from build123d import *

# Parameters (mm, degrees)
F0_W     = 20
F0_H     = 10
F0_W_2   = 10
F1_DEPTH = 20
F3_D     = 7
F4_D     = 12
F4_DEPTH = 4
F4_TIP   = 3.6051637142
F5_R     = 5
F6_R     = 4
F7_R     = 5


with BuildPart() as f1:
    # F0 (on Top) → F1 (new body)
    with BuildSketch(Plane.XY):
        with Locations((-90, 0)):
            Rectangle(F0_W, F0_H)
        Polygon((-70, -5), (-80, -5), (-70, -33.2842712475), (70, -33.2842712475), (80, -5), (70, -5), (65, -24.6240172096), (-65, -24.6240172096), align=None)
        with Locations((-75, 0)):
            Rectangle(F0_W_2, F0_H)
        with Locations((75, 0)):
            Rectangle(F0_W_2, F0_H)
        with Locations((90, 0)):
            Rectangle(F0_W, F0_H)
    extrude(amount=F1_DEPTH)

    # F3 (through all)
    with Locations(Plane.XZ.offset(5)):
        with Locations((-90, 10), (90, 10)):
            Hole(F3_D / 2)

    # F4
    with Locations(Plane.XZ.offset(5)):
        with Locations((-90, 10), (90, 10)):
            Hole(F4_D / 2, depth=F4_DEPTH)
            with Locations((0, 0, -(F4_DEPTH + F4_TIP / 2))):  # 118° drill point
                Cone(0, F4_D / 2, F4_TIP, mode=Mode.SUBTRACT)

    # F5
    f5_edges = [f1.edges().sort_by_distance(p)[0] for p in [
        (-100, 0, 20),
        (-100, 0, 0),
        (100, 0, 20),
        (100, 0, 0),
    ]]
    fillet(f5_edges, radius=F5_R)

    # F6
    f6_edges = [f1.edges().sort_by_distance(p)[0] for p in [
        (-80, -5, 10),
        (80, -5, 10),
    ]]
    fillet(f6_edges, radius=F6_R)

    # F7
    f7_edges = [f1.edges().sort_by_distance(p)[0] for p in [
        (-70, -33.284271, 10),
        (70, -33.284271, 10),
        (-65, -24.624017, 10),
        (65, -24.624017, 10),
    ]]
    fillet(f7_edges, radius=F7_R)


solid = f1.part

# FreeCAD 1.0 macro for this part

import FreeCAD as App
import Part
import Sketcher


def edges_at(feature, points):
    """Names of the edges that pass closest to the given points."""
    edges = feature.Shape.Edges
    near = lambda p: min(range(len(edges)), key=lambda i: edges[i].distToShape(Part.Vertex(*p))[0])
    return sorted({f"Edge{near(p) + 1}" for p in points})

doc = App.newDocument("Part")
body = doc.addObject("PartDesign::Body", "Body")

sketch1 = body.newObject("Sketcher::SketchObject", "Sketch")
sketch1.AttachmentSupport = (doc.getObject("XY_Plane"), [""])
sketch1.MapMode = "FlatFace"
sketch1.addGeometry(Part.LineSegment(App.Vector(-100, 5, 0), App.Vector(-100, -5, 0)), False)
sketch1.addGeometry(Part.LineSegment(App.Vector(-100, -5, 0), App.Vector(-80, -5, 0)), False)
sketch1.addGeometry(Part.LineSegment(App.Vector(-80, -5, 0), App.Vector(-70, -33, 0)), False)
sketch1.addGeometry(Part.LineSegment(App.Vector(-70, -33, 0), App.Vector(70, -33, 0)), False)
sketch1.addGeometry(Part.LineSegment(App.Vector(70, -33, 0), App.Vector(80, -5, 0)), False)
sketch1.addGeometry(Part.LineSegment(App.Vector(80, -5, 0), App.Vector(100, -5, 0)), False)
sketch1.addGeometry(Part.LineSegment(App.Vector(100, -5, 0), App.Vector(100, 5, 0)), False)
sketch1.addGeometry(Part.LineSegment(App.Vector(100, 5, 0), App.Vector(70, 5, 0)), False)
sketch1.addGeometry(Part.LineSegment(App.Vector(70, 5, 0), App.Vector(70, -5, 0)), False)
sketch1.addGeometry(Part.LineSegment(App.Vector(70, -5, 0), App.Vector(65, -25, 0)), False)
sketch1.addGeometry(Part.LineSegment(App.Vector(65, -25, 0), App.Vector(-65, -25, 0)), False)
sketch1.addGeometry(Part.LineSegment(App.Vector(-65, -25, 0), App.Vector(-70, -5, 0)), False)
sketch1.addGeometry(Part.LineSegment(App.Vector(-70, -5, 0), App.Vector(-70, 5, 0)), False)
sketch1.addGeometry(Part.LineSegment(App.Vector(-70, 5, 0), App.Vector(-100, 5, 0)), False)
sketch1.addConstraint(Sketcher.Constraint("Coincident", 0, 2, 1, 1))
sketch1.addConstraint(Sketcher.Constraint("Coincident", 1, 2, 2, 1))
sketch1.addConstraint(Sketcher.Constraint("Coincident", 2, 2, 3, 1))
sketch1.addConstraint(Sketcher.Constraint("Coincident", 3, 2, 4, 1))
sketch1.addConstraint(Sketcher.Constraint("Coincident", 4, 2, 5, 1))
sketch1.addConstraint(Sketcher.Constraint("Coincident", 5, 2, 6, 1))
sketch1.addConstraint(Sketcher.Constraint("Coincident", 6, 2, 7, 1))
sketch1.addConstraint(Sketcher.Constraint("Coincident", 7, 2, 8, 1))
sketch1.addConstraint(Sketcher.Constraint("Coincident", 8, 2, 9, 1))
sketch1.addConstraint(Sketcher.Constraint("Coincident", 9, 2, 10, 1))
sketch1.addConstraint(Sketcher.Constraint("Coincident", 10, 2, 11, 1))
sketch1.addConstraint(Sketcher.Constraint("Coincident", 11, 2, 12, 1))
sketch1.addConstraint(Sketcher.Constraint("Coincident", 12, 2, 13, 1))
sketch1.addConstraint(Sketcher.Constraint("Coincident", 13, 2, 0, 1))
sketch1.addConstraint(Sketcher.Constraint("Vertical", 0))
sketch1.addConstraint(Sketcher.Constraint("Horizontal", 1))
sketch1.addConstraint(Sketcher.Constraint("Horizontal", 3))
sketch1.addConstraint(Sketcher.Constraint("Horizontal", 5))
sketch1.addConstraint(Sketcher.Constraint("Vertical", 6))
sketch1.addConstraint(Sketcher.Constraint("Horizontal", 7))
sketch1.addConstraint(Sketcher.Constraint("Vertical", 8))
sketch1.addConstraint(Sketcher.Constraint("Horizontal", 10))
sketch1.addConstraint(Sketcher.Constraint("Vertical", 12))
sketch1.addConstraint(Sketcher.Constraint("Horizontal", 13))
sketch1.addConstraint(Sketcher.Constraint("Symmetric", 0, 2, 6, 2, -1, 1))
sketch1.addConstraint(Sketcher.Constraint("Symmetric", 7, 2, 11, 2, -1, 1))
sketch1.addConstraint(Sketcher.Constraint("Symmetric", 1, 2, 4, 2, -2))
sketch1.addConstraint(Sketcher.Constraint("Horizontal", 5, 2, 8, 2))
sketch1.addConstraint(Sketcher.Constraint("Horizontal", 7, 2, 12, 2))
sketch1.addConstraint(Sketcher.Constraint("Vertical", 3, 2, 7, 2))
sketch1.addConstraint(Sketcher.Constraint("Vertical", 2, 2, 11, 2))
sketch1.addConstraint(Sketcher.Constraint("Equal", 9, 11))
sketch1.addConstraint(Sketcher.Constraint("DistanceX", 1, 1, 1, 2, 20.0))
sketch1.addConstraint(Sketcher.Constraint("DistanceX", 3, 1, 3, 2, 140.0))
sketch1.addConstraint(Sketcher.Constraint("DistanceX", 7, 2, 7, 1, 30.0))
sketch1.addConstraint(Sketcher.Constraint("DistanceX", 10, 2, 10, 1, 130.0))
sketch1.addConstraint(Sketcher.Constraint("DistanceY", 0, 2, 0, 1, 10.0))
sketch1.addConstraint(Sketcher.Constraint("Distance", 2, 30.0))
sketch1.addConstraint(Sketcher.Constraint("Distance", 9, 20.250977))
pad1 = body.newObject("PartDesign::Pad", "Pad")
pad1.Profile = sketch1
pad1.Length = 20

sketch2 = body.newObject("Sketcher::SketchObject", "Sketch001")
sketch2.AttachmentSupport = (doc.getObject("XZ_Plane"), [""])
sketch2.MapMode = "FlatFace"
sketch2.AttachmentOffset = App.Placement(App.Vector(0, 0, 5), App.Rotation())
sketch2.addGeometry(Part.Circle(App.Vector(-90, 10, 0), App.Vector(0, 0, 1), 3.5), False)
sketch2.addGeometry(Part.Circle(App.Vector(90, 10, 0), App.Vector(0, 0, 1), 3.5), False)
sketch2.addConstraint(Sketcher.Constraint("Equal", 0, 1))
sketch2.addConstraint(Sketcher.Constraint("Symmetric", 0, 3, 1, 3, -2))
sketch2.addConstraint(Sketcher.Constraint("Diameter", 0, 7.0))
sketch2.addConstraint(Sketcher.Constraint("DistanceX", 0, 3, -1, 1, 90.0))
sketch2.addConstraint(Sketcher.Constraint("DistanceY", -1, 1, 0, 3, 10.0))
doc.recompute()
hole = body.newObject("PartDesign::Hole", "Hole")
hole.Profile = sketch2
hole.ThreadType = "None"
hole.Diameter = 7
hole.DepthType = "ThroughAll"

sketch3 = body.newObject("Sketcher::SketchObject", "Sketch002")
sketch3.AttachmentSupport = (doc.getObject("XZ_Plane"), [""])
sketch3.MapMode = "FlatFace"
sketch3.AttachmentOffset = App.Placement(App.Vector(0, 0, 5), App.Rotation())
sketch3.addGeometry(Part.Circle(App.Vector(-90, 10, 0), App.Vector(0, 0, 1), 6), False)
sketch3.addGeometry(Part.Circle(App.Vector(90, 10, 0), App.Vector(0, 0, 1), 6), False)
sketch3.addConstraint(Sketcher.Constraint("Equal", 0, 1))
sketch3.addConstraint(Sketcher.Constraint("Symmetric", 0, 3, 1, 3, -2))
sketch3.addConstraint(Sketcher.Constraint("Diameter", 0, 12.0))
sketch3.addConstraint(Sketcher.Constraint("DistanceX", 0, 3, -1, 1, 90.0))
sketch3.addConstraint(Sketcher.Constraint("DistanceY", -1, 1, 0, 3, 10.0))
doc.recompute()
hole2 = body.newObject("PartDesign::Hole", "Hole001")
hole2.Profile = sketch3
hole2.ThreadType = "None"
hole2.Diameter = 12
hole2.DepthType = "Dimension"
hole2.Depth = 4
hole2.DrillPoint = "Angled"
hole2.DrillPointAngle = 118
doc.recompute()

fillet = body.newObject("PartDesign::Fillet", "Fillet")
fillet.Base = (hole2, edges_at(hole2, [
    (-100, 0, 20),
    (-100, 0, 0),
    (100, 0, 20),
    (100, 0, 0),
]))
fillet.Radius = 5
doc.recompute()

fillet2 = body.newObject("PartDesign::Fillet", "Fillet001")
fillet2.Base = (fillet, edges_at(fillet, [(-80, -5, 10), (80, -5, 10)]))
fillet2.Radius = 4
doc.recompute()

fillet3 = body.newObject("PartDesign::Fillet", "Fillet002")
fillet3.Base = (fillet2, edges_at(fillet2, [
    (-70, -33.284, 10),
    (70, -33.284, 10),
    (-65, -24.624, 10),
    (65, -24.624, 10),
]))
fillet3.Radius = 5

doc.recompute()
